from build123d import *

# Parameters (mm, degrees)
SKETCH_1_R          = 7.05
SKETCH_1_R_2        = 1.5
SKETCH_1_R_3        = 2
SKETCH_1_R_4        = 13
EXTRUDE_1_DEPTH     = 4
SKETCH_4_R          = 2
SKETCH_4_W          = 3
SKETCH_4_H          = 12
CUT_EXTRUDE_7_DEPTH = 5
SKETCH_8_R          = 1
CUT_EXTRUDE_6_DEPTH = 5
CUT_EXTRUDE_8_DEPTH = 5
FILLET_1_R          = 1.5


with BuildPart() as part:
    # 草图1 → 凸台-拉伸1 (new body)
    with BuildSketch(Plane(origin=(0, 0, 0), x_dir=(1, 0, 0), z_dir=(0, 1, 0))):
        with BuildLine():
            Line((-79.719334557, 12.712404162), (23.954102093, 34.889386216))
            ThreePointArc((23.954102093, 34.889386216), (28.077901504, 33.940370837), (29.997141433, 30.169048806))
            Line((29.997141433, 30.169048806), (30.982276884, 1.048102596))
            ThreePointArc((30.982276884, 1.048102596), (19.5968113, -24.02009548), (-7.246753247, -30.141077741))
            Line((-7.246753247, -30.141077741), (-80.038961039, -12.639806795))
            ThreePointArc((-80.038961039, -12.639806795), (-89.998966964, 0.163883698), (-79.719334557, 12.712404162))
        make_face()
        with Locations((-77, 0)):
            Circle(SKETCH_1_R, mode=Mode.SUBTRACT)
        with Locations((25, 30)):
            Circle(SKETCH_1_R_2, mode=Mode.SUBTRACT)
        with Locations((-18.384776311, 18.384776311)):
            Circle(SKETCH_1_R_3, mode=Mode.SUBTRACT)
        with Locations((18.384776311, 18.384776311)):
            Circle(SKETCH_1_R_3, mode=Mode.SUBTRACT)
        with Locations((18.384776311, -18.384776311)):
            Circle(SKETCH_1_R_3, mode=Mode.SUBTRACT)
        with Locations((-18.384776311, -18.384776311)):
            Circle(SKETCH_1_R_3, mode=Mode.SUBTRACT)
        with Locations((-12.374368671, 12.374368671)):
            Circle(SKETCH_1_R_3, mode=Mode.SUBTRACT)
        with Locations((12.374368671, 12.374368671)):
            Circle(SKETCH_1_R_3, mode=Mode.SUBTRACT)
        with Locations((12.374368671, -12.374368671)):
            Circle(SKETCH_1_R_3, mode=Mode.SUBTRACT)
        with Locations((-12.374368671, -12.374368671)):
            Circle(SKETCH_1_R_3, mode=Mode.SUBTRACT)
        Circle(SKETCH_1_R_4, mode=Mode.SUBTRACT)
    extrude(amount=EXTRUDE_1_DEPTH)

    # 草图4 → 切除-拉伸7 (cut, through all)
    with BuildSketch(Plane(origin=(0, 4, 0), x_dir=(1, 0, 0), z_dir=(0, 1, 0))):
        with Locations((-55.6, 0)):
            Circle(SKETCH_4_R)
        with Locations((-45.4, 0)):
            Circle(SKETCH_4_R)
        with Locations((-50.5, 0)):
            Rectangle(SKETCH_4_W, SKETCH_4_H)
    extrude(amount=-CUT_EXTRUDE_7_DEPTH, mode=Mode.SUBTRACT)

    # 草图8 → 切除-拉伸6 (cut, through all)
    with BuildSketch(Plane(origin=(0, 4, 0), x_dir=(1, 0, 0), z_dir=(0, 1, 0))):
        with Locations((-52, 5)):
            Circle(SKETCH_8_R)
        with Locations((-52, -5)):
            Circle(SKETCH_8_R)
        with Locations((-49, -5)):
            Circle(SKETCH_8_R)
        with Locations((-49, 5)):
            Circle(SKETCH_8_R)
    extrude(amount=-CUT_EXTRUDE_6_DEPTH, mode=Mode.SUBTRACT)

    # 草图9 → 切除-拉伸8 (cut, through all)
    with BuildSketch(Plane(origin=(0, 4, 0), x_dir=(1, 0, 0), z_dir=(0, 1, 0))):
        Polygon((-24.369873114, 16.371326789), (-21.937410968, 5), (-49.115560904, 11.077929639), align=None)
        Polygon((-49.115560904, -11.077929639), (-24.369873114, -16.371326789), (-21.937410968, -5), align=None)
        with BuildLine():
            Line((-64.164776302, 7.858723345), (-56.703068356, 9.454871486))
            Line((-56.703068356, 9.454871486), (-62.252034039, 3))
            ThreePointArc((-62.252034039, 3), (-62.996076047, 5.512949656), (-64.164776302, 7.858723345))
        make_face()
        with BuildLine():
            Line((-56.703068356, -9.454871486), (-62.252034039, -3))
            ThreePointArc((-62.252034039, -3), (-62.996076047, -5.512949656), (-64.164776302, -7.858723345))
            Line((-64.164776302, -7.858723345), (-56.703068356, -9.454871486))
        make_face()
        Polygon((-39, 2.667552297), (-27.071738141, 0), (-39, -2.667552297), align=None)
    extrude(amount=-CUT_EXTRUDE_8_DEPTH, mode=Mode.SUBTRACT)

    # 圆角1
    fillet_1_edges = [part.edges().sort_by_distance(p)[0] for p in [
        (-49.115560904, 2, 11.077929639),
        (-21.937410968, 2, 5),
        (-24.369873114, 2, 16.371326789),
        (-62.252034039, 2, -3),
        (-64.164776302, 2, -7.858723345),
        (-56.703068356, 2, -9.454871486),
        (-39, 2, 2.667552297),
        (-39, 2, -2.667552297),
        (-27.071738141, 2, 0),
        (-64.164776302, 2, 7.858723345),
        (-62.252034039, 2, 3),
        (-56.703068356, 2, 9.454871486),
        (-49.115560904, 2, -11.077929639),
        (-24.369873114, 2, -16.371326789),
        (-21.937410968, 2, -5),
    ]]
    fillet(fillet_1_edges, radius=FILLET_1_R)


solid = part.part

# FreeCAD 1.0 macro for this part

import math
import FreeCAD as App
import Part
import Sketcher
from FreeCAD import Vector
Q = App.Units.Quantity


def edges_at(feature, points):
    """Names of the edges that pass closest to the given points."""
    edges = feature.Shape.Edges
    near = lambda p: min(range(len(edges)), key=lambda i: edges[i].distToShape(Part.Vertex(*p))[0])
    return sorted({f"Edge{near(p) + 1}" for p in points})


def add_polygon(sketch, points):
    """Adds a closed chain of lines whose ends are joined by coincident constraints."""
    first, n = sketch.GeometryCount, len(points)
    for a, b in zip(points, points[1:] + points[:1]):
        sketch.addGeometry(Part.LineSegment(App.Vector(*a, 0), App.Vector(*b, 0)), False)
    for i in range(n):
        sketch.addConstraint(Sketcher.Constraint("Coincident", first + i, 2, first + (i + 1) % n, 1))

doc = App.newDocument("Part")
params = doc.addObject("Spreadsheet::Sheet", "Params")
for row, (alias, value) in enumerate([
    ("sketch1_diameter", "4 mm"),
    ("sketch1_diameter2", "26 mm"),
    ("sketch1_diameter3", "3 mm"),
    ("sketch1_radius", "31 mm"),
    ("sketch1_radius2", "5 mm"),
    ("pad1_length", "4 mm"),
    ("sketch2_diameter", "4 mm"),
    ("sketch2_width", "3 mm"),
    ("sketch2_height", "12 mm"),
    ("sketch3_diameter", "2 mm"),
    ("sketch4_radius", "15.05 mm"),
    ("fillet_radius", "1.5 mm"),
], start=1):
    params.set(f"A{row}", alias)
    params.set(f"B{row}", "=" + value)
    params.setAlias(f"B{row}", alias)

body = doc.addObject("PartDesign::Body", "Body")

sketch1 = body.newObject("Sketcher::SketchObject", "Sketch")
sketch1.AttachmentSupport = (doc.getObject("XZ_Plane"), [""])
sketch1.MapMode = "FlatFace"
sketch1.addGeometry(Part.LineSegment(Vector(23.954102, -34.889386, 0), Vector(-79.719335, -12.712404, 0)), False)
sketch1.addGeometry(Part.ArcOfCircle(Part.Circle(Vector(-77, 0, 0), Vector(0, 0, 1), 13), math.radians(103.518908), math.radians(257.925722)), False)
sketch1.addGeometry(Part.LineSegment(Vector(-80.038961, 12.639807, 0), Vector(-7.246753, 30.141078, 0)), False)
sketch1.addGeometry(Part.ArcOfCircle(Part.Circle(Vector(0, 0, 0), Vector(0, 0, 1), 31), math.radians(-1.937526), math.radians(103.518908)), False)
sketch1.addGeometry(Part.LineSegment(Vector(30.982277, -1.048103, 0), Vector(29.997141, -30.169049, 0)), False)
sketch1.addGeometry(Part.ArcOfCircle(Part.Circle(Vector(25, -30, 0), Vector(0, 0, 1), 5), math.radians(-102.074278), math.radians(-1.937526)), False)
sketch1.addGeometry(Part.Circle(Vector(18.384776, 18.384776, 0), Vector(0, 0, 1), 2), False)
sketch1.addGeometry(Part.Circle(Vector(12.374369, 12.374369, 0), Vector(0, 0, 1), 2), False)
sketch1.addGeometry(Part.Circle(Vector(-18.384776, 18.384776, 0), Vector(0, 0, 1), 2), False)
sketch1.addGeometry(Part.Circle(Vector(-12.374369, 12.374369, 0), Vector(0, 0, 1), 2), False)
sketch1.addGeometry(Part.Circle(Vector(0, 0, 0), Vector(0, 0, 1), 13), False)
sketch1.addGeometry(Part.Circle(Vector(-77, 0, 0), Vector(0, 0, 1), 7.05), False)
sketch1.addGeometry(Part.Circle(Vector(18.384776, -18.384776, 0), Vector(0, 0, 1), 2), False)
sketch1.addGeometry(Part.Circle(Vector(12.374369, -12.374369, 0), Vector(0, 0, 1), 2), False)
sketch1.addGeometry(Part.Circle(Vector(-12.374369, -12.374369, 0), Vector(0, 0, 1), 2), False)
sketch1.addGeometry(Part.Circle(Vector(-18.384776, -18.384776, 0), Vector(0, 0, 1), 2), False)
sketch1.addGeometry(Part.Circle(Vector(25, -30, 0), Vector(0, 0, 1), 1.5), False)
sketch1.addConstraint(Sketcher.Constraint("Tangent", 0, 2, 1, 2))
sketch1.addConstraint(Sketcher.Constraint("Tangent", 1, 1, 2, 1))
sketch1.addConstraint(Sketcher.Constraint("Tangent", 2, 2, 3, 2))
sketch1.addConstraint(Sketcher.Constraint("Tangent", 3, 1, 4, 1))
sketch1.addConstraint(Sketcher.Constraint("Tangent", 4, 2, 5, 2))
sketch1.addConstraint(Sketcher.Constraint("Tangent", 5, 1, 0, 1))
sketch1.addConstraint(Sketcher.Constraint("Coincident", 3, 3, -1, 1))
sketch1.addConstraint(Sketcher.Constraint("Coincident", 10, 3, -1, 1))
sketch1.addConstraint(Sketcher.Constraint("Coincident", 11, 3, 1, 3))
sketch1.addConstraint(Sketcher.Constraint("Coincident", 16, 3, 5, 3))
sketch1.addConstraint(Sketcher.Constraint("Equal", 6, 7))
sketch1.addConstraint(Sketcher.Constraint("Equal", 7, 8))
sketch1.addConstraint(Sketcher.Constraint("Equal", 8, 9))
sketch1.addConstraint(Sketcher.Constraint("Equal", 1, 10))
sketch1.addConstraint(Sketcher.Constraint("Equal", 9, 12))
sketch1.addConstraint(Sketcher.Constraint("Equal", 12, 13))
sketch1.addConstraint(Sketcher.Constraint("Equal", 13, 14))
sketch1.addConstraint(Sketcher.Constraint("Equal", 14, 15))
sketch1.addConstraint(Sketcher.Constraint("Symmetric", 8, 3, 12, 3, -1, 1))
sketch1.addConstraint(Sketcher.Constraint("Symmetric", 9, 3, 13, 3, -1, 1))
sketch1.addConstraint(Sketcher.Constraint("Symmetric", 7, 3, 14, 3, -1, 1))
sketch1.addConstraint(Sketcher.Constraint("Symmetric", 6, 3, 15, 3, -1, 1))
sketch1.addConstraint(Sketcher.Constraint("Symmetric", 6, 3, 8, 3, -2))
sketch1.addConstraint(Sketcher.Constraint("Symmetric", 7, 3, 9, 3, -2))
sketch1.addConstraint(Sketcher.Constraint("PointOnObject", 1, 3, -1))
sketch1.addConstraint(Sketcher.Constraint("Diameter", 6, Q("4 mm")))
sketch1.addConstraint(Sketcher.Constraint("Diameter", 10, Q("26 mm")))
sketch1.addConstraint(Sketcher.Constraint("Diameter", 16, Q("3 mm")))
sketch1.addConstraint(Sketcher.Constraint("Radius", 3, Q("31 mm")))
sketch1.addConstraint(Sketcher.Constraint("Radius", 5, Q("5 mm")))
sketch1.addConstraint(Sketcher.Constraint("Diameter", 11, Q("14.1 mm")))
sketch1.addConstraint(Sketcher.Constraint("DistanceX", 1, 3, -1, 1, Q("77 mm")))
sketch1.addConstraint(Sketcher.Constraint("DistanceX", -1, 1, 5, 3, Q("25 mm")))
sketch1.addConstraint(Sketcher.Constraint("DistanceY", 5, 3, -1, 1, Q("30 mm")))
sketch1.addConstraint(Sketcher.Constraint("DistanceY", 8, 3, 2, 2, Q("11.756301 mm")))
sketch1.addConstraint(Sketcher.Constraint("DistanceX", 12, 3, 3, 1, Q("12.597501 mm")))
sketch1.addConstraint(Sketcher.Constraint("DistanceX", -1, 1, 7, 3, Q("12.374369 mm")))
sketch1.addConstraint(Sketcher.Constraint("DistanceY", -1, 1, 7, 3, Q("12.374369 mm")))
sketch1.setExpression("Constraints[25]", "Params.sketch1_diameter")
sketch1.setExpression("Constraints[26]", "Params.sketch1_diameter2")
sketch1.setExpression("Constraints[27]", "Params.sketch1_diameter3")
sketch1.setExpression("Constraints[28]", "Params.sketch1_radius")
sketch1.setExpression("Constraints[29]", "Params.sketch1_radius2")
pad1 = body.newObject("PartDesign::Pad", "Pad")
pad1.Profile = sketch1
pad1.setExpression("Length", "Params.pad1_length")
pad1.Reversed = True

sketch2 = body.newObject("Sketcher::SketchObject", "Sketch001")
sketch2.AttachmentSupport = (doc.getObject("XZ_Plane"), [""])
sketch2.MapMode = "FlatFace"
sketch2.AttachmentOffset = App.Placement(Vector(0, 0, -4), App.Rotation())
sketch2.addGeometry(Part.Circle(Vector(-55.6, 0, 0), Vector(0, 0, 1), 2), False)
sketch2.addGeometry(Part.Circle(Vector(-45.4, 0, 0), Vector(0, 0, 1), 2), False)
add_polygon(sketch2, [(-52, -6), (-52, 6), (-49, 6), (-49, -6)])
sketch2.addConstraint(Sketcher.Constraint("Vertical", 2))
sketch2.addConstraint(Sketcher.Constraint("Horizontal", 3))
sketch2.addConstraint(Sketcher.Constraint("Vertical", 4))
sketch2.addConstraint(Sketcher.Constraint("Horizontal", 5))
sketch2.addConstraint(Sketcher.Constraint("Equal", 0, 1))
sketch2.addConstraint(Sketcher.Constraint("PointOnObject", 0, 3, -1))
sketch2.addConstraint(Sketcher.Constraint("PointOnObject", 1, 3, -1))
sketch2.addConstraint(Sketcher.Constraint("Diameter", 0, Q("4 mm")))
sketch2.addConstraint(Sketcher.Constraint("DistanceX", 3, 1, 3, 2, Q("3 mm")))
sketch2.addConstraint(Sketcher.Constraint("DistanceY", 2, 1, 2, 2, Q("12 mm")))
sketch2.addConstraint(Sketcher.Constraint("DistanceX", 2, 2, -1, 1, Q("52 mm")))
sketch2.addConstraint(Sketcher.Constraint("DistanceY", -1, 1, 2, 2, Q("6 mm")))
sketch2.addConstraint(Sketcher.Constraint("DistanceX", 0, 3, -1, 1, Q("55.6 mm")))
sketch2.addConstraint(Sketcher.Constraint("DistanceX", 1, 3, -1, 1, Q("45.4 mm")))
sketch2.setExpression("Constraints[11]", "Params.sketch2_diameter")
sketch2.setExpression("Constraints[12]", "Params.sketch2_width")
sketch2.setExpression("Constraints[13]", "Params.sketch2_height")
pocket1 = body.newObject("PartDesign::Pocket", "Pocket")
pocket1.Profile = sketch2
pocket1.Type = "ThroughAll"
pocket1.Reversed = True

sketch3 = body.newObject("Sketcher::SketchObject", "Sketch002")
sketch3.AttachmentSupport = (doc.getObject("XZ_Plane"), [""])
sketch3.MapMode = "FlatFace"
sketch3.AttachmentOffset = App.Placement(Vector(0, 0, -4), App.Rotation())
sketch3.addGeometry(Part.Circle(Vector(-52, -5, 0), Vector(0, 0, 1), 1), False)
sketch3.addGeometry(Part.Circle(Vector(-52, 5, 0), Vector(0, 0, 1), 1), False)
sketch3.addGeometry(Part.Circle(Vector(-49, 5, 0), Vector(0, 0, 1), 1), False)
sketch3.addGeometry(Part.Circle(Vector(-49, -5, 0), Vector(0, 0, 1), 1), False)
sketch3.addConstraint(Sketcher.Constraint("Equal", 0, 1))
sketch3.addConstraint(Sketcher.Constraint("Equal", 1, 2))
sketch3.addConstraint(Sketcher.Constraint("Equal", 2, 3))
sketch3.addConstraint(Sketcher.Constraint("Symmetric", 0, 3, 1, 3, -1))
sketch3.addConstraint(Sketcher.Constraint("Symmetric", 2, 3, 3, 3, -1))
sketch3.addConstraint(Sketcher.Constraint("Horizontal", 1, 3, 2, 3))
sketch3.addConstraint(Sketcher.Constraint("Diameter", 0, Q("2 mm")))
sketch3.addConstraint(Sketcher.Constraint("DistanceX", 0, 3, -1, 1, Q("52 mm")))
sketch3.addConstraint(Sketcher.Constraint("DistanceY", 0, 3, -1, 1, Q("5 mm")))
sketch3.addConstraint(Sketcher.Constraint("DistanceX", 2, 3, -1, 1, Q("49 mm")))
sketch3.setExpression("Constraints[6]", "Params.sketch3_diameter")
pocket2 = body.newObject("PartDesign::Pocket", "Pocket001")
pocket2.Profile = sketch3
pocket2.Type = "ThroughAll"
pocket2.Reversed = True

sketch4 = body.newObject("Sketcher::SketchObject", "Sketch003")
sketch4.AttachmentSupport = (doc.getObject("XZ_Plane"), [""])
sketch4.MapMode = "FlatFace"
sketch4.AttachmentOffset = App.Placement(Vector(0, 0, -4), App.Rotation())
add_polygon(sketch4, [(-21.937411, -5), (-24.369873, -16.371327), (-49.115561, -11.07793)])
add_polygon(sketch4, [(-49.115561, 11.07793), (-24.369873, 16.371327), (-21.937411, 5)])
sketch4.addGeometry(Part.LineSegment(Vector(-56.703068, -9.454871, 0), Vector(-64.164776, -7.858723, 0)), False)
sketch4.addGeometry(Part.ArcOfCircle(Part.Circle(Vector(-77, 0, 0), Vector(0, 0, 1), 15.05), math.radians(-31.478213), math.radians(-11.498106)), False)
sketch4.addGeometry(Part.LineSegment(Vector(-62.252034, -3, 0), Vector(-56.703068, -9.454871, 0)), False)
sketch4.addGeometry(Part.LineSegment(Vector(-56.703068, 9.454871, 0), Vector(-62.252034, 3, 0)), False)
sketch4.addGeometry(Part.ArcOfCircle(Part.Circle(Vector(-77, 0, 0), Vector(0, 0, 1), 15.05), math.radians(11.498106), math.radians(31.478213)), False)
sketch4.addGeometry(Part.LineSegment(Vector(-64.164776, 7.858723, 0), Vector(-56.703068, 9.454871, 0)), False)
add_polygon(sketch4, [(-27.071738, 0), (-39, -2.667552), (-39, 2.667552)])
sketch4.addConstraint(Sketcher.Constraint("Coincident", 6, 2, 7, 1))
sketch4.addConstraint(Sketcher.Constraint("Coincident", 7, 2, 8, 1))
sketch4.addConstraint(Sketcher.Constraint("Coincident", 8, 2, 6, 1))
sketch4.addConstraint(Sketcher.Constraint("Coincident", 9, 2, 10, 1))
sketch4.addConstraint(Sketcher.Constraint("Coincident", 10, 2, 11, 1))
sketch4.addConstraint(Sketcher.Constraint("Coincident", 11, 2, 9, 1))
sketch4.addConstraint(Sketcher.Constraint("Vertical", 13))
sketch4.addConstraint(Sketcher.Constraint("Coincident", 10, 3, 7, 3))
sketch4.addConstraint(Sketcher.Constraint("Equal", 7, 10))
sketch4.addConstraint(Sketcher.Constraint("Symmetric", 0, 2, 3, 2, -1))
sketch4.addConstraint(Sketcher.Constraint("Symmetric", 2, 2, 4, 2, -1))
sketch4.addConstraint(Sketcher.Constraint("Symmetric", 1, 2, 5, 2, -1))
sketch4.addConstraint(Sketcher.Constraint("Symmetric", 7, 2, 9, 2, -1))
sketch4.addConstraint(Sketcher.Constraint("Symmetric", 8, 2, 11, 2, -1))
sketch4.addConstraint(Sketcher.Constraint("PointOnObject", 14, 2, -1))
sketch4.addConstraint(Sketcher.Constraint("Perpendicular", 0, 1))
sketch4.addConstraint(Sketcher.Constraint("Parallel", 1, 6))
sketch4.addConstraint(Sketcher.Constraint("Perpendicular", 4, 11))
sketch4.addConstraint(Sketcher.Constraint("Parallel", 2, 12))
sketch4.addConstraint(Sketcher.Constraint("Parallel", 5, 14))
sketch4.addConstraint(Sketcher.Constraint("Radius", 7, Q("15.05 mm")))
sketch4.addConstraint(Sketcher.Constraint("DistanceX", 7, 3, -1, 1, Q("77 mm")))
sketch4.addConstraint(Sketcher.Constraint("DistanceY", 2, 2, -1, 1, Q("5 mm")))
sketch4.addConstraint(Sketcher.Constraint("DistanceY", 7, 2, -1, 1, Q("3 mm")))
sketch4.addConstraint(Sketcher.Constraint("DistanceX", 12, 2, -1, 1, Q("39 mm")))
sketch4.addConstraint(Sketcher.Constraint("Distance", 12, Q("12.222899 mm")))
sketch4.addConstraint(Sketcher.Constraint("DistanceY", 8, 2, 5, 2, Q("20.532801 mm")))
sketch4.addConstraint(Sketcher.Constraint("Distance", 2, Q("27.849471 mm")))
sketch4.addConstraint(Sketcher.Constraint("Distance", 8, Q("8.512132 mm")))
sketch4.addConstraint(Sketcher.Constraint("DistanceY", 13, 1, 13, 2, Q("5.335105 mm")))
sketch4.addConstraint(Sketcher.Constraint("DistanceX", 1, 2, -1, 1, Q("49.115561 mm")))
sketch4.addConstraint(Sketcher.Constraint("DistanceY", 8, 2, 6, 2, Q("1.596148 mm")))
sketch4.setExpression("Constraints[29]", "Params.sketch4_radius")
pocket3 = body.newObject("PartDesign::Pocket", "Pocket002")
pocket3.Profile = sketch4
pocket3.Type = "ThroughAll"
pocket3.Reversed = True
doc.recompute()

fillet = body.newObject("PartDesign::Fillet", "Fillet")
fillet.Base = (pocket3, edges_at(pocket3, [
    (-49.116, 2, 11.078),
    (-21.937, 2, 5),
    (-24.37, 2, 16.371),
    (-62.252, 2, -3),
    (-64.165, 2, -7.859),
    (-56.703, 2, -9.455),
    (-39, 2, 2.668),
    (-39, 2, -2.668),
    (-27.072, 2, 0),
    (-64.165, 2, 7.859),
    (-62.252, 2, 3),
    (-56.703, 2, 9.455),
    (-49.116, 2, -11.078),
    (-24.37, 2, -16.371),
    (-21.937, 2, -5),
]))
fillet.setExpression("Radius", "Params.fillet_radius")

doc.recompute()
